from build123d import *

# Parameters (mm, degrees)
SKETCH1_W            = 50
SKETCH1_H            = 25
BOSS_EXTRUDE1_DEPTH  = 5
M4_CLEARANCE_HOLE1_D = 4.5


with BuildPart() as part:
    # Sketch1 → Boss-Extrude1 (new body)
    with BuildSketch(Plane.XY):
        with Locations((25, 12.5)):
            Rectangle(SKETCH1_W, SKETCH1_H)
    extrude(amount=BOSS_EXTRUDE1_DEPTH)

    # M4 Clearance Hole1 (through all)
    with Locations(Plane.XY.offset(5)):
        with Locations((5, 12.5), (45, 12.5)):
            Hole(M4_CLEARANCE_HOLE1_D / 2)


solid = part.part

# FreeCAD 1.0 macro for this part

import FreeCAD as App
import Part
import Sketcher

V = App.Vector

doc = App.newDocument("Part")
body = doc.addObject("PartDesign::Body", "Body")

sketch1 = body.newObject("Sketcher::SketchObject", "Sketch")
sketch1.AttachmentSupport = (doc.getObject("XY_Plane"), [""])
sketch1.MapMode = "FlatFace"
sketch1.addGeometry([
    Part.LineSegment(V(0, 25, 0), V(0, 0, 0)),
    Part.LineSegment(V(0, 0, 0), V(50, 0, 0)),
    Part.LineSegment(V(50, 0, 0), V(50, 25, 0)),
    Part.LineSegment(V(50, 25, 0), V(0, 25, 0)),
], False)
sketch1.addConstraint([
    Sketcher.Constraint("Coincident", 0, 2, 1, 1),
    Sketcher.Constraint("Coincident", 1, 2, 2, 1),
    Sketcher.Constraint("Coincident", 2, 2, 3, 1),
    Sketcher.Constraint("Coincident", 3, 2, 0, 1),
    Sketcher.Constraint("Vertical", 0),
    Sketcher.Constraint("Horizontal", 1),
    Sketcher.Constraint("Vertical", 2),
    Sketcher.Constraint("Horizontal", 3),
    Sketcher.Constraint("Coincident", 0, 2, -1, 1),
    Sketcher.Constraint("DistanceX", 1, 1, 1, 2, 50.0),
    Sketcher.Constraint("DistanceY", 0, 2, 0, 1, 25.0),
])
pad1 = body.newObject("PartDesign::Pad", "Pad")
pad1.Profile = sketch1
pad1.Length = 5

sketch2 = body.newObject("Sketcher::SketchObject", "Sketch001")
sketch2.AttachmentSupport = (doc.getObject("XY_Plane"), [""])
sketch2.MapMode = "FlatFace"
sketch2.AttachmentOffset = App.Placement(V(0, 0, 5), App.Rotation())
sketch2.addGeometry([
    Part.Circle(V(5, 12.5, 0), V(0, 0, 1), 2.25),
    Part.Circle(V(45, 12.5, 0), V(0, 0, 1), 2.25),
], False)
sketch2.addConstraint([
    Sketcher.Constraint("Equal", 0, 1),
    Sketcher.Constraint("Horizontal", 0, 3, 1, 3),
    Sketcher.Constraint("Diameter", 0, 4.5),
    Sketcher.Constraint("DistanceX", -1, 1, 0, 3, 5.0),
    Sketcher.Constraint("DistanceX", -1, 1, 1, 3, 45.0),
    Sketcher.Constraint("DistanceY", -1, 1, 0, 3, 12.5),
])
doc.recompute()
hole = body.newObject("PartDesign::Hole", "Hole")
hole.Profile = sketch2
hole.ThreadType = "None"
hole.Diameter = 4.5
hole.DepthType = "ThroughAll"

doc.recompute()
